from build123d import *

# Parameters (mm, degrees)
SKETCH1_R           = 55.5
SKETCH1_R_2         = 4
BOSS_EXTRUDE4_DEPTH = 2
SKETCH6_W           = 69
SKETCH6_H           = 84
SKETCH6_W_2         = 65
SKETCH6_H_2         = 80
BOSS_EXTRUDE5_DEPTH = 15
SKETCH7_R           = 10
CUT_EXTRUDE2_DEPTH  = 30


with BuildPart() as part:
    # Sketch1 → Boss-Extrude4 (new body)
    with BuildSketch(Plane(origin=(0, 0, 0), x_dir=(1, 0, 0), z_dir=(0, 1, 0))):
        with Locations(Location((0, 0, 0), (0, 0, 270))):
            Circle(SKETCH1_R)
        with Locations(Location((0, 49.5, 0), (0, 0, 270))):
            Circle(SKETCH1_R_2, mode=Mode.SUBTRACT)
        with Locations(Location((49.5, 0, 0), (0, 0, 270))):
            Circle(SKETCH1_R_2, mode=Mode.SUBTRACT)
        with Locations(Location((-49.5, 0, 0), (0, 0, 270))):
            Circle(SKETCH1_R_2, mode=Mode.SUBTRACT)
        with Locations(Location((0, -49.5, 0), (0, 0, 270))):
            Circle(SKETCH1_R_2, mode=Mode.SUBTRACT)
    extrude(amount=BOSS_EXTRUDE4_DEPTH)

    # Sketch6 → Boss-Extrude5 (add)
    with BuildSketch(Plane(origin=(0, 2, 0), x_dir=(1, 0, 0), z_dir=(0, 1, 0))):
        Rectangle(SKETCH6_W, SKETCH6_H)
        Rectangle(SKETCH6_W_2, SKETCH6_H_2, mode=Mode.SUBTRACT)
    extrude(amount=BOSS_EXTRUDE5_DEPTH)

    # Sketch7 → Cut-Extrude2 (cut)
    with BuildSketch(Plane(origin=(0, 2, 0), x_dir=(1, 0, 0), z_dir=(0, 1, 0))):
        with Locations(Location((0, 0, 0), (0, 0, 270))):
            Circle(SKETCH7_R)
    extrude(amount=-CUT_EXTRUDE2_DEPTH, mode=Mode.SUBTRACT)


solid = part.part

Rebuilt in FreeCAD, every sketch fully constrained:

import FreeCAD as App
import Part
import Sketcher

V = App.Vector

doc = App.newDocument("Part")
params = doc.addObject("Spreadsheet::Sheet", "Params")
for row, (alias, value) in enumerate([
    ("sketch1_diameter", "111 mm"),
    ("sketch1_diameter2", "8 mm"),
    ("pad1_length", "2 mm"),
    ("sketch2_width", "69 mm"),
    ("sketch2_width2", "65 mm"),
    ("sketch2_height", "84 mm"),
    ("sketch2_height2", "80 mm"),
    ("pad2_length", "15 mm"),
    ("sketch3_diameter", "20 mm"),
    ("pocket1_length", "30 mm"),
], start=1):
    params.set(f"A{row}", alias)
    params.set(f"B{row}", "=" + value)
    params.setAlias(f"B{row}", alias)

body = doc.addObject("PartDesign::Body", "Body")

# Sketch on XZ plane
sketch1 = doc.addObject("Sketcher::SketchObject", "Sketch")
body.addObject(sketch1)
sketch1.AttachmentSupport = (doc.XZ_Plane, [""])
sketch1.MapMode = "FlatFace"
sketch1.addGeometry([
    Part.Circle(V(0, 0, 0), V(0, 0, 1), 55.5),  # 0
    Part.Circle(V(0, -49.5, 0), V(0, 0, 1), 4),  # 1
    Part.Circle(V(-49.5, 0, 0), V(0, 0, 1), 4),  # 2
    Part.Circle(V(49.5, 0, 0), V(0, 0, 1), 4),  # 3
    Part.Circle(V(0, 49.5, 0), V(0, 0, 1), 4),  # 4
], False)
sketch1.addConstraint([
    Sketcher.Constraint("Coincident", 0, 3, -1, 1),
    Sketcher.Constraint("Equal", 1, 2),
    Sketcher.Constraint("Equal", 2, 3),
    Sketcher.Constraint("Equal", 3, 4),
    Sketcher.Constraint("Symmetric", 2, 3, 3, 3, -1, 1),
    Sketcher.Constraint("Symmetric", 1, 3, 4, 3, -1, 1),
    Sketcher.Constraint("PointOnObject", 1, 3, -2),
    Sketcher.Constraint("PointOnObject", 2, 3, -1),
    Sketcher.Constraint("Diameter", 0, 111.0),
    Sketcher.Constraint("Diameter", 1, 8.0),
    Sketcher.Constraint("DistanceX", 2, 3, 3, 3, 99.0),
    Sketcher.Constraint("DistanceY", 1, 3, 4, 3, 99.0),
])
sketch1.setExpression("Constraints[8]", "Params.sketch1_diameter")
sketch1.setExpression("Constraints[9]", "Params.sketch1_diameter2")
pad1 = doc.addObject("PartDesign::Pad", "Pad")
body.addObject(pad1)
pad1.Profile = sketch1
pad1.setExpression("Length", "Params.pad1_length")
pad1.Reversed = True

# Sketch on XZ plane
sketch2 = doc.addObject("Sketcher::SketchObject", "Sketch001")
body.addObject(sketch2)
sketch2.AttachmentSupport = (doc.XZ_Plane, [""])
sketch2.MapMode = "FlatFace"
sketch2.AttachmentOffset = App.Placement(V(0, 0, -2), App.Rotation())
sketch2.addGeometry([
    Part.LineSegment(V(-34, -42, 0), V(-34, 42, 0)),  # 0
    Part.LineSegment(V(-34, 42, 0), V(34, 42, 0)),  # 1
    Part.LineSegment(V(34, 42, 0), V(34, -42, 0)),  # 2
    Part.LineSegment(V(34, -42, 0), V(-34, -42, 0)),  # 3
    Part.LineSegment(V(32, 40, 0), V(-32, 40, 0)),  # 4
    Part.LineSegment(V(-32, 40, 0), V(-32, -40, 0)),  # 5
    Part.LineSegment(V(-32, -40, 0), V(32, -40, 0)),  # 6
    Part.LineSegment(V(32, -40, 0), V(32, 40, 0)),  # 7
], False)
sketch2.addConstraint([
    Sketcher.Constraint("Coincident", 0, 2, 1, 1),
    Sketcher.Constraint("Coincident", 1, 2, 2, 1),
    Sketcher.Constraint("Coincident", 2, 2, 3, 1),
    Sketcher.Constraint("Coincident", 3, 2, 0, 1),
    Sketcher.Constraint("Coincident", 4, 2, 5, 1),
    Sketcher.Constraint("Coincident", 5, 2, 6, 1),
    Sketcher.Constraint("Coincident", 6, 2, 7, 1),
    Sketcher.Constraint("Coincident", 7, 2, 4, 1),
    Sketcher.Constraint("Vertical", 0),
    Sketcher.Constraint("Horizontal", 1),
    Sketcher.Constraint("Vertical", 2),
    Sketcher.Constraint("Horizontal", 3),
    Sketcher.Constraint("Horizontal", 4),
    Sketcher.Constraint("Vertical", 5),
    Sketcher.Constraint("Horizontal", 6),
    Sketcher.Constraint("Vertical", 7),
    Sketcher.Constraint("Symmetric", 0, 2, 2, 2, -1, 1),
    Sketcher.Constraint("Symmetric", 4, 2, 6, 2, -1, 1),
    Sketcher.Constraint("DistanceX", 1, 1, 1, 2, 69.0),
    Sketcher.Constraint("DistanceX", 4, 2, 4, 1, 65.0),
    Sketcher.Constraint("DistanceY", 0, 1, 0, 2, 84.0),
    Sketcher.Constraint("DistanceY", 5, 2, 5, 1, 80.0),
])
sketch2.setExpression("Constraints[18]", "Params.sketch2_width")
sketch2.setExpression("Constraints[19]", "Params.sketch2_width2")
sketch2.setExpression("Constraints[20]", "Params.sketch2_height")
sketch2.setExpression("Constraints[21]", "Params.sketch2_height2")
pad2 = doc.addObject("PartDesign::Pad", "Pad001")
body.addObject(pad2)
pad2.Profile = sketch2
pad2.setExpression("Length", "Params.pad2_length")
pad2.Reversed = True

# Sketch on XZ plane
sketch3 = doc.addObject("Sketcher::SketchObject", "Sketch002")
body.addObject(sketch3)
sketch3.AttachmentSupport = (doc.XZ_Plane, [""])
sketch3.MapMode = "FlatFace"
sketch3.AttachmentOffset = App.Placement(V(0, 0, -2), App.Rotation())
sketch3.addGeometry(Part.Circle(V(0, 0, 0), V(0, 0, 1), 10), False)
sketch3.addConstraint([
    Sketcher.Constraint("Coincident", 0, 3, -1, 1),
    Sketcher.Constraint("Diameter", 0, 20.0),
])
sketch3.setExpression("Constraints[1]", "Params.sketch3_diameter")
pocket1 = doc.addObject("PartDesign::Pocket", "Pocket")
body.addObject(pocket1)
pocket1.Profile = sketch3
pocket1.setExpression("Length", "Params.pocket1_length")
pocket1.Reversed = True

doc.recompute()
